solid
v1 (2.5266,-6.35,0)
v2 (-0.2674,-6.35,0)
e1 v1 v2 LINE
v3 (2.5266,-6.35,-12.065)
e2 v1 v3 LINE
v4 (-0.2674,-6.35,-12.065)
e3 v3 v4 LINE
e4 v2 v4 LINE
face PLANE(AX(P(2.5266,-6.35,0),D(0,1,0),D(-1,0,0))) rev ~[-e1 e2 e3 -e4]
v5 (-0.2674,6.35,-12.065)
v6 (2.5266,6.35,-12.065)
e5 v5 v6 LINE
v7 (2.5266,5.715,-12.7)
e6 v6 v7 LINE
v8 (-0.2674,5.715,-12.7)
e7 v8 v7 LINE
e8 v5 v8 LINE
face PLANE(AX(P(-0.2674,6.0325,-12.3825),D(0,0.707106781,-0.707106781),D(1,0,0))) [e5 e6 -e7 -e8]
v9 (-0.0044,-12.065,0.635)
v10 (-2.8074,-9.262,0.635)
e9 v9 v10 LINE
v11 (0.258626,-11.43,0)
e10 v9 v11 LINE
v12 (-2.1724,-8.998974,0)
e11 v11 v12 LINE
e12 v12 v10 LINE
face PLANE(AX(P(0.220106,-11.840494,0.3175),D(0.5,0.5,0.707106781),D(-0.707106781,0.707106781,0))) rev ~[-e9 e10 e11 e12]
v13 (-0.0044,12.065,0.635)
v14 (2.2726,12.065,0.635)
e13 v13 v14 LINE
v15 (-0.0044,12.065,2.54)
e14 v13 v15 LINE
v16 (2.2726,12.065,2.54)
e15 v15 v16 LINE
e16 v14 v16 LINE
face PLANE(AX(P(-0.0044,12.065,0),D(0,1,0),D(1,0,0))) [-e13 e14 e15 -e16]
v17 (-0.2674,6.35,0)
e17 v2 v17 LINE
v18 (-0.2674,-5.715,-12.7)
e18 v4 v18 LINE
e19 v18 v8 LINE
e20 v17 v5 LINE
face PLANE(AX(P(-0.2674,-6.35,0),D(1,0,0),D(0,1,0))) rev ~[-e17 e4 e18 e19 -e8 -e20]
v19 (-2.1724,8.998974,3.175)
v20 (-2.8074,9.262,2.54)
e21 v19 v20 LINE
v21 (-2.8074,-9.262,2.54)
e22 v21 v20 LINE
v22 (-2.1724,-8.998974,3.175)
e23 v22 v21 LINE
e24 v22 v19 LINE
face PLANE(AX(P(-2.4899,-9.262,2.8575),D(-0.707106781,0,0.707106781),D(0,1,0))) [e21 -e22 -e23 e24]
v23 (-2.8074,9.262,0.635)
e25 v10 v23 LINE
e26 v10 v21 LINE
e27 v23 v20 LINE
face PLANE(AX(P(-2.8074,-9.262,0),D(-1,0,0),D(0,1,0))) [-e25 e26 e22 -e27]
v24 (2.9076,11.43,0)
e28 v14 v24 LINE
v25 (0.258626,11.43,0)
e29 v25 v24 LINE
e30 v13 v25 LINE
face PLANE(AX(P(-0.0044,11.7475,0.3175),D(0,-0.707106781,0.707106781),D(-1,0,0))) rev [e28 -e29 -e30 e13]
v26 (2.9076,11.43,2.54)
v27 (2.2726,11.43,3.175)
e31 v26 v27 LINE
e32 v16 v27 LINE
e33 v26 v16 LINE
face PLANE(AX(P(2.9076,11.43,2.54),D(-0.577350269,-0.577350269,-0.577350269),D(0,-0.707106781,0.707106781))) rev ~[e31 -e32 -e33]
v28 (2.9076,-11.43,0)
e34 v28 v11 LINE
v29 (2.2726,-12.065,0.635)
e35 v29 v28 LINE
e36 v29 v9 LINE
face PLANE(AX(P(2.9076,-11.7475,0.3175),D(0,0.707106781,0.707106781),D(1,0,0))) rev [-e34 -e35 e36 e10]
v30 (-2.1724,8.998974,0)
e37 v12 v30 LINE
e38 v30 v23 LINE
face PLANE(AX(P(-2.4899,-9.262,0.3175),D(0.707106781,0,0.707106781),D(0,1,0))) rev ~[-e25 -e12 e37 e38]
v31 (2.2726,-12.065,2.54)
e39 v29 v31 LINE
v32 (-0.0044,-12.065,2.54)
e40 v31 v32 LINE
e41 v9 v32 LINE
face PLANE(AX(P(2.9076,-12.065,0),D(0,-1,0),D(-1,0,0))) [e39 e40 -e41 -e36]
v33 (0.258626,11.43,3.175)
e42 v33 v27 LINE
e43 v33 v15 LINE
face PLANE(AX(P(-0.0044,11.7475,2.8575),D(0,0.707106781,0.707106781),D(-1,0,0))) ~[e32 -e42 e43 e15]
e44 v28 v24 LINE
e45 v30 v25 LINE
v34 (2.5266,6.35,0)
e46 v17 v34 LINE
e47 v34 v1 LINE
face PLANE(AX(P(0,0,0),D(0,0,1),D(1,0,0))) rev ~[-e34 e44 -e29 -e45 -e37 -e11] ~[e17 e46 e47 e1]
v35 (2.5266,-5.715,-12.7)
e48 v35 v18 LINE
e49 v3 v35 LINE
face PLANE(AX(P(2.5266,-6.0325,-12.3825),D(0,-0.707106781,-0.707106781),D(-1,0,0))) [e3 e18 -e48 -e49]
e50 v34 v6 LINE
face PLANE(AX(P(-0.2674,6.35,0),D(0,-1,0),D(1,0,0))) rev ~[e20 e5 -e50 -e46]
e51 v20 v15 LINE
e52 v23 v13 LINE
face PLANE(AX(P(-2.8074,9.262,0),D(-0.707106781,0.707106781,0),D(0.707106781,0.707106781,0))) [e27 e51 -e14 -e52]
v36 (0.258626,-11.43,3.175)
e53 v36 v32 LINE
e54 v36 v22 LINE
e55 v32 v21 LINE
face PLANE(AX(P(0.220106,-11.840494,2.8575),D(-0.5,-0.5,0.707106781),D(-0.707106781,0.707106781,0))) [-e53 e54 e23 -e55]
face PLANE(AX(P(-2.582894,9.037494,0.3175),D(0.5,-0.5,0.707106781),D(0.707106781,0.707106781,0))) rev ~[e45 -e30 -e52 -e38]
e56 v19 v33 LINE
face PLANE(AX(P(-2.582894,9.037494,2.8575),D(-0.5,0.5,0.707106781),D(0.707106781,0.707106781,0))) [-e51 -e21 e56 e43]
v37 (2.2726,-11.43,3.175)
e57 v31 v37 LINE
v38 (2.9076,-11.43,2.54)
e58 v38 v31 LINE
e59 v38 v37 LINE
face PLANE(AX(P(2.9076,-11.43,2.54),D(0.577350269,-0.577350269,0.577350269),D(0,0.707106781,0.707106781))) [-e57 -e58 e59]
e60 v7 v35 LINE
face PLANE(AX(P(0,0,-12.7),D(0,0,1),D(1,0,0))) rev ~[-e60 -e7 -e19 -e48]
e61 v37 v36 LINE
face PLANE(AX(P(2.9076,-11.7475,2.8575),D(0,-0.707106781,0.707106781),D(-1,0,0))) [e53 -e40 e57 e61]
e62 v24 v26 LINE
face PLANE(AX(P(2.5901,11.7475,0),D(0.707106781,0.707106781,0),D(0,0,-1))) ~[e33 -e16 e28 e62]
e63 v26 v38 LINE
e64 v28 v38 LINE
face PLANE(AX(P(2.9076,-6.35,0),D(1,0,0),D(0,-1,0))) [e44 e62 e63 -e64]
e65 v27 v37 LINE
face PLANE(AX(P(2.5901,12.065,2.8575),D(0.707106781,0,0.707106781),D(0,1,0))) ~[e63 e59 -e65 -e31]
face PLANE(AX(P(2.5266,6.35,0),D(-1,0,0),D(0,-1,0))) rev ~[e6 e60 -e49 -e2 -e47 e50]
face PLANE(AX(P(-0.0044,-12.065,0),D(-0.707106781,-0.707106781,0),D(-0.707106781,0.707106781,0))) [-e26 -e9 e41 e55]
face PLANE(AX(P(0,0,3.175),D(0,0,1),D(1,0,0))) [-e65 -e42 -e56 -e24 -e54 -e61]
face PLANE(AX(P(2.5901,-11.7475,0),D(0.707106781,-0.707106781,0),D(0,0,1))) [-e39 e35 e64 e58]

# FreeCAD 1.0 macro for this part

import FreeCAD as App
import Part
import Sketcher
from FreeCAD import Vector
Q = App.Units.Quantity


def edges_at(feature, points):
    """Names of the edges that pass closest to the given points."""
    edges = feature.Shape.Edges
    near = lambda p: min(range(len(edges)), key=lambda i: edges[i].distToShape(Part.Vertex(*p))[0])
    return sorted({f"Edge{near(p) + 1}" for p in points})


def add_polygon(sketch, points):
    """Adds a closed chain of lines whose ends are joined by coincident constraints."""
    first, n = sketch.GeometryCount, len(points)
    for a, b in zip(points, points[1:] + points[:1]):
        sketch.addGeometry(Part.LineSegment(App.Vector(*a, 0), App.Vector(*b, 0)), False)
    for i in range(n):
        sketch.addConstraint(Sketcher.Constraint("Coincident", first + i, 2, first + (i + 1) % n, 1))

doc = App.newDocument("Part")
body = doc.addObject("PartDesign::Body", "Body")

# Sketch on XY plane
sketch1 = body.newObject("Sketcher::SketchObject", "Sketch")
sketch1.AttachmentSupport = (doc.getObject("XY_Plane"), [""])
sketch1.MapMode = "FlatFace"
add_polygon(sketch1, [(2.5, 6.3), (-0.3, 6.3), (-0.3, -6.3), (2.5, -6.3)])  # lines 0-3
sketch1.addConstraint(Sketcher.Constraint("Horizontal", 0))
sketch1.addConstraint(Sketcher.Constraint("Vertical", 1))
sketch1.addConstraint(Sketcher.Constraint("Horizontal", 2))
sketch1.addConstraint(Sketcher.Constraint("Vertical", 3))
sketch1.addConstraint(Sketcher.Constraint("DistanceY", 1, 2, 1, 1, Q("0.5 in")))
sketch1.addConstraint(Sketcher.Constraint("DistanceX", 0, 2, 0, 1, Q("0.11 in")))
sketch1.addConstraint(Sketcher.Constraint("DistanceY", -1, 1, 0, 2, Q("0.25 in")))
sketch1.addConstraint(Sketcher.Constraint("DistanceX", 0, 2, -1, 1, Q("0.2674 mm")))
pad1 = body.newObject("PartDesign::Pad", "Pad")
pad1.Profile = sketch1
pad1.Length = Q("0.5 in")
pad1.Reversed = True

# Sketch on XY plane
sketch2 = body.newObject("Sketcher::SketchObject", "Sketch001")
sketch2.AttachmentSupport = (doc.getObject("XY_Plane"), [""])
sketch2.MapMode = "FlatFace"
add_polygon(sketch2, [(2.9, 12.1), (0, 12.1), (-2.8, 9.3), (-2.8, -9.3), (0, -12.1), (2.9, -12.1)])  # lines 0-5
sketch2.addConstraint(Sketcher.Constraint("Horizontal", 0))
sketch2.addConstraint(Sketcher.Constraint("Vertical", 2))
sketch2.addConstraint(Sketcher.Constraint("Horizontal", 4))
sketch2.addConstraint(Sketcher.Constraint("Vertical", 5))
sketch2.addConstraint(Sketcher.Constraint("Symmetric", 0, 2, 3, 2, -1))
sketch2.addConstraint(Sketcher.Constraint("Perpendicular", 1, 3))
sketch2.addConstraint(Sketcher.Constraint("Equal", 1, 3))
sketch2.addConstraint(Sketcher.Constraint("DistanceY", 5, 1, 5, 2, Q("0.95 in")))
sketch2.addConstraint(Sketcher.Constraint("DistanceY", 2, 2, 2, 1, Q("0.7293 in")))
sketch2.addConstraint(Sketcher.Constraint("DistanceX", 2, 2, 4, 2, Q("0.225 in")))
sketch2.addConstraint(Sketcher.Constraint("DistanceX", 0, 2, -1, 1, Q("0.0044 mm")))
pad2 = body.newObject("PartDesign::Pad", "Pad001")
pad2.Profile = sketch2
pad2.Length = Q("0.125 in")
doc.recompute()

chamfer = body.newObject("PartDesign::Chamfer", "Chamfer")
chamfer.Base = (pad2, edges_at(pad2, [
    (-1.406, 10.664, 3.175),
    (1.452, 12.065, 3.175),
    (-2.807, 0, 3.175),
    (-1.406, -10.664, 3.175),
    (1.452, -12.065, 3.175),
    (1.452, 12.065, 0),
    (1.452, -12.065, 0),
    (-1.406, -10.664, 0),
    (-2.807, 0, 0),
    (-1.406, 10.664, 0),
    (2.908, 12.065, 1.587),
    (2.908, -12.065, 1.587),
    (2.908, 0, 3.175),
    (1.13, 6.35, -12.7),
    (1.13, -6.35, -12.7),
]))
chamfer.Size = Q("0.025 in")

doc.recompute()
